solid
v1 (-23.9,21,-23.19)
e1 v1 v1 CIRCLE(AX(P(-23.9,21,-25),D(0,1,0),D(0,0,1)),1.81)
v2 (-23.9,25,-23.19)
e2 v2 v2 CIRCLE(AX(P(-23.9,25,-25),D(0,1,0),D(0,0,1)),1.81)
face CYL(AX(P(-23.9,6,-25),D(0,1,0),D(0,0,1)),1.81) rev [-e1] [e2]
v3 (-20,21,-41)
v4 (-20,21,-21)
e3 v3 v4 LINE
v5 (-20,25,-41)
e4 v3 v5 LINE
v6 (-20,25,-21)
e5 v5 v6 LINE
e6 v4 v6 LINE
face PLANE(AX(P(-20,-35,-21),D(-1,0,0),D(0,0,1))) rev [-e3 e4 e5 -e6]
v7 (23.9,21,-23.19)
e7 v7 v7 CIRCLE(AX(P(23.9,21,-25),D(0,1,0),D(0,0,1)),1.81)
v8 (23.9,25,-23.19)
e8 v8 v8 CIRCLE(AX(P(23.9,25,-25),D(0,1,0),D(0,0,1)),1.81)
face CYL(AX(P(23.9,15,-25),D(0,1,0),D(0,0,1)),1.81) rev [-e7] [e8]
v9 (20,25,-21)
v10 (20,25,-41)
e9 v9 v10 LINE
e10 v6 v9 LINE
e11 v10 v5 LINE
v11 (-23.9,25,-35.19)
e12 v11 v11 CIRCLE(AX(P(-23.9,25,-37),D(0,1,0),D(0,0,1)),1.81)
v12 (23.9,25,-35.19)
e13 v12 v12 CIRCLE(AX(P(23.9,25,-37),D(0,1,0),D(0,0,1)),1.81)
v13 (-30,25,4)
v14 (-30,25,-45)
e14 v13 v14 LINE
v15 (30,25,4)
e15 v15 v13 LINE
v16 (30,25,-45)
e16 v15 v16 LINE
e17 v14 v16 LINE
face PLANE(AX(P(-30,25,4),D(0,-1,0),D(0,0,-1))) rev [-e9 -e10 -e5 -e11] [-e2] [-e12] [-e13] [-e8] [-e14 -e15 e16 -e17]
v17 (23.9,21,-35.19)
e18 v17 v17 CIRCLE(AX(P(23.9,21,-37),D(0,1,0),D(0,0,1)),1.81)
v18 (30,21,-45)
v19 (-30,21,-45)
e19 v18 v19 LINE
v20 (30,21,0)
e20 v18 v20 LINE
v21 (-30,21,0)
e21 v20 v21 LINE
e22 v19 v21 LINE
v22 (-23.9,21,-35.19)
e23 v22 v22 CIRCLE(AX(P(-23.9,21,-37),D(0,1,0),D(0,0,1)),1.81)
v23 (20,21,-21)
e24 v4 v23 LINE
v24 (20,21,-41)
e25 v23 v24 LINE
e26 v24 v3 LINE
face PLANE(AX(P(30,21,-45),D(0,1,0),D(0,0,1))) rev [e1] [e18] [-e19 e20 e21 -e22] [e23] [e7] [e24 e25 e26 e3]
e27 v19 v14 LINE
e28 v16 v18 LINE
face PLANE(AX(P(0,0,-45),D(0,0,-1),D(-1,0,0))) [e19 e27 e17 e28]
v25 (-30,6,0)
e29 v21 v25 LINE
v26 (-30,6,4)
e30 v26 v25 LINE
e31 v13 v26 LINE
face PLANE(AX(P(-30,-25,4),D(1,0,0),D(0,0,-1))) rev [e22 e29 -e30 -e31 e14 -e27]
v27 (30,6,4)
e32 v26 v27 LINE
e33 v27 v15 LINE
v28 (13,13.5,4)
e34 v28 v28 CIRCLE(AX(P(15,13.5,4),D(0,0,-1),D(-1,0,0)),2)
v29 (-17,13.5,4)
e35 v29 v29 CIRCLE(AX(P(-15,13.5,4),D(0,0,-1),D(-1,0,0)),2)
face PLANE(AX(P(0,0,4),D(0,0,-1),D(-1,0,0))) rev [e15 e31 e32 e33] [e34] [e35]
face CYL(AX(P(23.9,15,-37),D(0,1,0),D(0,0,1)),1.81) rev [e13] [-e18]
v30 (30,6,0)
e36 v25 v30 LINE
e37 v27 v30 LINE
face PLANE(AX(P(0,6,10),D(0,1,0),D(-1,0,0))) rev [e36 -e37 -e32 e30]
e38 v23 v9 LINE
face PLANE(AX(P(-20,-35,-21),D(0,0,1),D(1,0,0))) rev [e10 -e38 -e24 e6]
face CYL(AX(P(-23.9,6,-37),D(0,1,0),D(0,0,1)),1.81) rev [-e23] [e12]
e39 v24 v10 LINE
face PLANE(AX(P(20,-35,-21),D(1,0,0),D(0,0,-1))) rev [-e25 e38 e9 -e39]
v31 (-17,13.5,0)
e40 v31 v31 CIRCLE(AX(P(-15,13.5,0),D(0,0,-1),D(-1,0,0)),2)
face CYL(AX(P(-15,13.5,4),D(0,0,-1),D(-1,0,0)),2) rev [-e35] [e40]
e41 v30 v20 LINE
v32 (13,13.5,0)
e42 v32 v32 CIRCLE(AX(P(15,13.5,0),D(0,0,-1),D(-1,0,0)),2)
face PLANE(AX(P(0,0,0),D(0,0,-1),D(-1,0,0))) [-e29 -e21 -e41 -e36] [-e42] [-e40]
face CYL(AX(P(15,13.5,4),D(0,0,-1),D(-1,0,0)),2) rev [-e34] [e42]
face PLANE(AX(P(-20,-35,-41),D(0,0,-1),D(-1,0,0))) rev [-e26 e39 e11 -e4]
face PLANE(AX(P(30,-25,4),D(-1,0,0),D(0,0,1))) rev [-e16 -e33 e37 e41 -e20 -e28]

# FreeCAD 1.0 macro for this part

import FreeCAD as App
import Part
import Sketcher
Q = App.Units.Quantity

doc = App.newDocument("Part")
body = doc.addObject("PartDesign::Body", "Body")

sketch1 = body.newObject("Sketcher::SketchObject", "Sketch")
sketch1.AttachmentSupport = (doc.getObject("XY_Plane"), [""])
sketch1.MapMode = "FlatFace"
sketch1.addGeometry([
    Part.LineSegment(App.Vector(-30, 25, 0), App.Vector(-30, -25, 0)),
    Part.LineSegment(App.Vector(-30, -25, 0), App.Vector(30, -25, 0)),
    Part.LineSegment(App.Vector(30, -25, 0), App.Vector(30, 25, 0)),
    Part.LineSegment(App.Vector(30, 25, 0), App.Vector(-30, 25, 0)),
], False)
sketch1.addConstraint([
    Sketcher.Constraint("Coincident", 0, 2, 1, 1),
    Sketcher.Constraint("Coincident", 1, 2, 2, 1),
    Sketcher.Constraint("Coincident", 2, 2, 3, 1),
    Sketcher.Constraint("Coincident", 3, 2, 0, 1),
    Sketcher.Constraint("Vertical", 0),
    Sketcher.Constraint("Horizontal", 1),
    Sketcher.Constraint("Vertical", 2),
    Sketcher.Constraint("Horizontal", 3),
    Sketcher.Constraint("Symmetric", 0, 2, 2, 2, -1, 1),
    Sketcher.Constraint("DistanceX", 1, 1, 1, 2, Q("60 mm")),
    Sketcher.Constraint("DistanceY", 0, 2, 0, 1, Q("50 mm")),
])
pad1 = body.newObject("PartDesign::Pad", "Pad")
pad1.Profile = sketch1
pad1.Length = 4

sketch2 = body.newObject("Sketcher::SketchObject", "Sketch001")
sketch2.AttachmentSupport = (doc.getObject("XY_Plane"), [""])
sketch2.MapMode = "FlatFace"
sketch2.addGeometry([
    Part.LineSegment(App.Vector(30, 25, 0), App.Vector(30, 21, 0)),
    Part.LineSegment(App.Vector(30, 21, 0), App.Vector(-30, 21, 0)),
    Part.LineSegment(App.Vector(-30, 21, 0), App.Vector(-30, 25, 0)),
    Part.LineSegment(App.Vector(-30, 25, 0), App.Vector(30, 25, 0)),
], False)
sketch2.addConstraint([
    Sketcher.Constraint("Coincident", 0, 2, 1, 1),
    Sketcher.Constraint("Coincident", 1, 2, 2, 1),
    Sketcher.Constraint("Coincident", 2, 2, 3, 1),
    Sketcher.Constraint("Coincident", 3, 2, 0, 1),
    Sketcher.Constraint("Vertical", 0),
    Sketcher.Constraint("Horizontal", 1),
    Sketcher.Constraint("Vertical", 2),
    Sketcher.Constraint("Horizontal", 3),
    Sketcher.Constraint("DistanceX", 1, 2, 1, 1, Q("60 mm")),
    Sketcher.Constraint("DistanceY", 0, 2, 0, 1, Q("4 mm")),
    Sketcher.Constraint("DistanceX", -1, 1, 0, 2, Q("30 mm")),
    Sketcher.Constraint("DistanceY", -1, 1, 0, 2, Q("21 mm")),
])
pad2 = body.newObject("PartDesign::Pad", "Pad001")
pad2.Profile = sketch2
pad2.Length = 45
pad2.Reversed = True

sketch3 = body.newObject("Sketcher::SketchObject", "Sketch002")
sketch3.AttachmentSupport = (doc.getObject("XZ_Plane"), [""])
sketch3.MapMode = "FlatFace"
sketch3.AttachmentOffset = App.Placement(App.Vector(0, 0, -25), App.Rotation())
sketch3.addGeometry([
    Part.LineSegment(App.Vector(-20, -41, 0), App.Vector(-20, -21, 0)),
    Part.LineSegment(App.Vector(-20, -21, 0), App.Vector(20, -21, 0)),
    Part.LineSegment(App.Vector(20, -21, 0), App.Vector(20, -41, 0)),
    Part.LineSegment(App.Vector(20, -41, 0), App.Vector(-20, -41, 0)),
], False)
sketch3.addConstraint([
    Sketcher.Constraint("Coincident", 0, 2, 1, 1),
    Sketcher.Constraint("Coincident", 1, 2, 2, 1),
    Sketcher.Constraint("Coincident", 2, 2, 3, 1),
    Sketcher.Constraint("Coincident", 3, 2, 0, 1),
    Sketcher.Constraint("Vertical", 0),
    Sketcher.Constraint("Horizontal", 1),
    Sketcher.Constraint("Vertical", 2),
    Sketcher.Constraint("Horizontal", 3),
    Sketcher.Constraint("DistanceX", 1, 1, 1, 2, Q("40 mm")),
    Sketcher.Constraint("DistanceY", 0, 1, 0, 2, Q("20 mm")),
    Sketcher.Constraint("DistanceX", 0, 2, -1, 1, Q("20 mm")),
    Sketcher.Constraint("DistanceY", 0, 2, -1, 1, Q("21 mm")),
])
pocket1 = body.newObject("PartDesign::Pocket", "Pocket")
pocket1.Profile = sketch3
pocket1.Length = 60
pocket1.Reversed = True

sketch4 = body.newObject("Sketcher::SketchObject", "Sketch003")
sketch4.AttachmentSupport = (doc.getObject("XY_Plane"), [""])
sketch4.MapMode = "FlatFace"
sketch4.addGeometry([
    Part.LineSegment(App.Vector(30, 6, 0), App.Vector(30, -25, 0)),
    Part.LineSegment(App.Vector(30, -25, 0), App.Vector(-30, -25, 0)),
    Part.LineSegment(App.Vector(-30, -25, 0), App.Vector(-30, 6, 0)),
    Part.LineSegment(App.Vector(-30, 6, 0), App.Vector(30, 6, 0)),
], False)
sketch4.addConstraint([
    Sketcher.Constraint("Coincident", 0, 2, 1, 1),
    Sketcher.Constraint("Coincident", 1, 2, 2, 1),
    Sketcher.Constraint("Coincident", 2, 2, 3, 1),
    Sketcher.Constraint("Coincident", 3, 2, 0, 1),
    Sketcher.Constraint("Vertical", 0),
    Sketcher.Constraint("Horizontal", 1),
    Sketcher.Constraint("Vertical", 2),
    Sketcher.Constraint("Horizontal", 3),
    Sketcher.Constraint("DistanceX", 1, 2, 1, 1, Q("60 mm")),
    Sketcher.Constraint("DistanceY", 0, 2, 0, 1, Q("31 mm")),
    Sketcher.Constraint("DistanceX", -1, 1, 0, 2, Q("30 mm")),
    Sketcher.Constraint("DistanceY", 0, 2, -1, 1, Q("25 mm")),
])
pocket2 = body.newObject("PartDesign::Pocket", "Pocket001")
pocket2.Profile = sketch4
pocket2.Length = 10
pocket2.Reversed = True

sketch5 = body.newObject("Sketcher::SketchObject", "Sketch004")
sketch5.AttachmentSupport = (doc.getObject("XY_Plane"), [""])
sketch5.MapMode = "FlatFace"
sketch5.addGeometry([
    Part.Circle(App.Vector(15, 13.5, 0), App.Vector(0, 0, 1), 2),
    Part.Circle(App.Vector(-15, 13.5, 0), App.Vector(0, 0, 1), 2),
], False)
sketch5.addConstraint([
    Sketcher.Constraint("Equal", 0, 1),
    Sketcher.Constraint("Symmetric", 0, 3, 1, 3, -2),
    Sketcher.Constraint("Diameter", 0, Q("4 mm")),
    Sketcher.Constraint("DistanceX", -1, 1, 0, 3, Q("15 mm")),
    Sketcher.Constraint("DistanceY", -1, 1, 0, 3, Q("13.5 mm")),
])
pocket3 = body.newObject("PartDesign::Pocket", "Pocket002")
pocket3.Profile = sketch5
pocket3.Type = "ThroughAll"
pocket3.Reversed = True

sketch6 = body.newObject("Sketcher::SketchObject", "Sketch005")
sketch6.AttachmentSupport = (doc.getObject("XZ_Plane"), [""])
sketch6.MapMode = "FlatFace"
sketch6.AttachmentOffset = App.Placement(App.Vector(0, 0, -25), App.Rotation())
sketch6.addGeometry([
    Part.Circle(App.Vector(23.9, -25, 0), App.Vector(0, 0, 1), 1.8),
    Part.Circle(App.Vector(23.9, -37, 0), App.Vector(0, 0, 1), 1.8),
], False)
sketch6.addConstraint([
    Sketcher.Constraint("Equal", 0, 1),
    Sketcher.Constraint("Vertical", 0, 3, 1, 3),
    Sketcher.Constraint("Diameter", 0, Q("3.62 mm")),
    Sketcher.Constraint("DistanceY", 0, 3, -1, 1, Q("25 mm")),
    Sketcher.Constraint("DistanceY", 1, 3, -1, 1, Q("37 mm")),
    Sketcher.Constraint("DistanceX", -1, 1, 0, 3, Q("23.9 mm")),
])
pocket4 = body.newObject("PartDesign::Pocket", "Pocket003")
pocket4.Profile = sketch6
pocket4.Length = 10
pocket4.Reversed = True

sketch7 = body.newObject("Sketcher::SketchObject", "Sketch006")
sketch7.AttachmentSupport = (doc.getObject("XZ_Plane"), [""])
sketch7.MapMode = "FlatFace"
sketch7.AttachmentOffset = App.Placement(App.Vector(0, 0, -25), App.Rotation())
sketch7.addGeometry([
    Part.Circle(App.Vector(-23.9, -37, 0), App.Vector(0, 0, 1), 1.8),
    Part.Circle(App.Vector(-23.9, -25, 0), App.Vector(0, 0, 1), 1.8),
], False)
sketch7.addConstraint([
    Sketcher.Constraint("Equal", 0, 1),
    Sketcher.Constraint("Vertical", 0, 3, 1, 3),
    Sketcher.Constraint("Diameter", 0, Q("3.62 mm")),
    Sketcher.Constraint("DistanceY", 0, 3, -1, 1, Q("37 mm")),
    Sketcher.Constraint("DistanceY", 1, 3, -1, 1, Q("25 mm")),
    Sketcher.Constraint("DistanceX", 0, 3, -1, 1, Q("23.9 mm")),
])
pocket5 = body.newObject("PartDesign::Pocket", "Pocket004")
pocket5.Profile = sketch7
pocket5.Type = "ThroughAll"
pocket5.Reversed = True

doc.recompute()
